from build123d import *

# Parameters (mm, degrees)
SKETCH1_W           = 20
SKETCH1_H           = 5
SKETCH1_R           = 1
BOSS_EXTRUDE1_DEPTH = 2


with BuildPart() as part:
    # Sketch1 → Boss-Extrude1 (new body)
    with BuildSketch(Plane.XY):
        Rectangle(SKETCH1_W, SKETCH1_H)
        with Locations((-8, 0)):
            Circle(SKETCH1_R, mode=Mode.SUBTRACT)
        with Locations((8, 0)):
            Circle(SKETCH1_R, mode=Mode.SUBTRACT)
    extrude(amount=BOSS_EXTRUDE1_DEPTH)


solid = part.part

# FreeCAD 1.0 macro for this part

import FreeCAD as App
import Part
import Sketcher
Q = App.Units.Quantity


def add_polygon(sketch, points):
    """Adds a closed chain of lines whose ends are joined by coincident constraints."""
    first, n = sketch.GeometryCount, len(points)
    for a, b in zip(points, points[1:] + points[:1]):
        sketch.addGeometry(Part.LineSegment(App.Vector(*a, 0), App.Vector(*b, 0)), False)
    for i in range(n):
        sketch.addConstraint(Sketcher.Constraint("Coincident", first + i, 2, first + (i + 1) % n, 1))

doc = App.newDocument("Part")
params = doc.addObject("Spreadsheet::Sheet", "Params")
for row, (alias, value) in enumerate([
    ("sketch1_diameter", "2 mm"),
    ("sketch1_width", "20 mm"),
    ("sketch1_height", "5 mm"),
    ("pad1_length", "2 mm"),
], start=1):
    params.set(f"A{row}", alias)
    params.set(f"B{row}", "=" + value)
    params.setAlias(f"B{row}", alias)

body = doc.addObject("PartDesign::Body", "Body")

sketch1 = body.newObject("Sketcher::SketchObject", "Sketch")
sketch1.AttachmentSupport = (doc.getObject("XY_Plane"), [""])
sketch1.MapMode = "FlatFace"
add_polygon(sketch1, [(-10, 2.5), (-10, -2.5), (10, -2.5), (10, 2.5)])
sketch1.addGeometry(Part.Circle(App.Vector(-8, 0, 0), App.Vector(0, 0, 1), 1), False)
sketch1.addGeometry(Part.Circle(App.Vector(8, 0, 0), App.Vector(0, 0, 1), 1), False)
sketch1.addConstraint([
    Sketcher.Constraint("Vertical", 0),
    Sketcher.Constraint("Horizontal", 1),
    Sketcher.Constraint("Vertical", 2),
    Sketcher.Constraint("Horizontal", 3),
    Sketcher.Constraint("Equal", 4, 5),
    Sketcher.Constraint("Symmetric", 4, 3, 5, 3, -1, 1),
    Sketcher.Constraint("Symmetric", 0, 2, 2, 2, -1, 1),
    Sketcher.Constraint("PointOnObject", 4, 3, -1),
    Sketcher.Constraint("Diameter", 4, Q("2 mm")),
    Sketcher.Constraint("DistanceX", 1, 1, 1, 2, Q("20 mm")),
    Sketcher.Constraint("DistanceY", 0, 2, 0, 1, Q("5 mm")),
    Sketcher.Constraint("DistanceX", 4, 3, -1, 1, Q("8 mm")),
])
sketch1.setExpression("Constraints[12]", "Params.sketch1_diameter")
sketch1.setExpression("Constraints[13]", "Params.sketch1_width")
sketch1.setExpression("Constraints[14]", "Params.sketch1_height")
pad1 = body.newObject("PartDesign::Pad", "Pad")
pad1.Profile = sketch1
pad1.setExpression("Length", "Params.pad1_length")

doc.recompute()
